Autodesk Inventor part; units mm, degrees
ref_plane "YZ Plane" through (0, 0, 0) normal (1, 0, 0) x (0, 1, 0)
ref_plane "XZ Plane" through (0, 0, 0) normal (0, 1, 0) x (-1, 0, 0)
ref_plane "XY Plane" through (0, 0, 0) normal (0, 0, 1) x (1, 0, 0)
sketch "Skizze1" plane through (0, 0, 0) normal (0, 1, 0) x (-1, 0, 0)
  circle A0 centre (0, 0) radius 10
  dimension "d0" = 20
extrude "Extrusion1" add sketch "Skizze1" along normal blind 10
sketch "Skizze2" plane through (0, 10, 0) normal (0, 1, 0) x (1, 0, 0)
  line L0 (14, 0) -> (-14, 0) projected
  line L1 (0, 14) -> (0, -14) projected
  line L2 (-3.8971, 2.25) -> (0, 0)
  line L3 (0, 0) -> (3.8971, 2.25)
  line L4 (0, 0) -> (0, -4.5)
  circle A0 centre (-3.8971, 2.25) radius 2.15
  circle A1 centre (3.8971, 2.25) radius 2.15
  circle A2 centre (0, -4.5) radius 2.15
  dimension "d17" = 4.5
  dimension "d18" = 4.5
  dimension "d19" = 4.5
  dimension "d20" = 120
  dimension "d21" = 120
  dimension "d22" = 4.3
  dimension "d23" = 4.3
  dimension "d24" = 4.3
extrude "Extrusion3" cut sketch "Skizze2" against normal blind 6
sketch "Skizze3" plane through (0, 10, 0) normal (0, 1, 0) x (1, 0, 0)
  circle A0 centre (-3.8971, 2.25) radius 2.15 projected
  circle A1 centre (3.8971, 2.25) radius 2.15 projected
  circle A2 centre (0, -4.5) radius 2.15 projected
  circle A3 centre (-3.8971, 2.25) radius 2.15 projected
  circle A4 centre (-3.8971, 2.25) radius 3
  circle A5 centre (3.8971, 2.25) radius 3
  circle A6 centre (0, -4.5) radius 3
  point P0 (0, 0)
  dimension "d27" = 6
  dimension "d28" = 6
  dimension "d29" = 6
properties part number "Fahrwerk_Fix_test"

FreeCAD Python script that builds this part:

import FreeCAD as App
import Part
import Sketcher

doc = App.newDocument("Part")
body = doc.addObject("PartDesign::Body", "Body")

# Sketch on XZ plane
sketch1 = doc.addObject("Sketcher::SketchObject", "Sketch")
body.addObject(sketch1)
sketch1.AttachmentSupport = (doc.XZ_Plane, [""])
sketch1.MapMode = "FlatFace"
sketch1.addGeometry(Part.Circle(App.Vector(0, 0, 0), App.Vector(0, 0, 1), 10), False)
sketch1.addConstraint([
    Sketcher.Constraint("Coincident", 0, 3, -1, 1),
    Sketcher.Constraint("Diameter", 0, 20.0),
])
pad1 = doc.addObject("PartDesign::Pad", "Pad")
body.addObject(pad1)
pad1.Profile = sketch1
pad1.Length = 10
pad1.Reversed = True

# Sketch on XZ plane
sketch2 = doc.addObject("Sketcher::SketchObject", "Sketch001")
body.addObject(sketch2)
sketch2.AttachmentSupport = (doc.XZ_Plane, [""])
sketch2.MapMode = "FlatFace"
sketch2.AttachmentOffset = App.Placement(App.Vector(0, 0, -10), App.Rotation())
sketch2.addGeometry([
    Part.Circle(App.Vector(0, 4.5, 0), App.Vector(0, 0, 1), 2.15),
    Part.Circle(App.Vector(-3.8971, -2.25, 0), App.Vector(0, 0, 1), 2.15),
    Part.Circle(App.Vector(3.8971, -2.25, 0), App.Vector(0, 0, 1), 2.15),
], False)
sketch2.addConstraint([
    Sketcher.Constraint("Equal", 0, 1),
    Sketcher.Constraint("Equal", 1, 2),
    Sketcher.Constraint("Symmetric", 1, 3, 2, 3, -2),
    Sketcher.Constraint("PointOnObject", 0, 3, -2),
    Sketcher.Constraint("Diameter", 0, 4.3),
    Sketcher.Constraint("DistanceY", -1, 1, 0, 3, 4.5),
    Sketcher.Constraint("DistanceY", 1, 3, -1, 1, 2.25),
    Sketcher.Constraint("DistanceX", 1, 3, -1, 1, 3.897),
])
pocket1 = doc.addObject("PartDesign::Pocket", "Pocket")
body.addObject(pocket1)
pocket1.Profile = sketch2
pocket1.Length = 6
pocket1.Reversed = True

doc.recompute()
